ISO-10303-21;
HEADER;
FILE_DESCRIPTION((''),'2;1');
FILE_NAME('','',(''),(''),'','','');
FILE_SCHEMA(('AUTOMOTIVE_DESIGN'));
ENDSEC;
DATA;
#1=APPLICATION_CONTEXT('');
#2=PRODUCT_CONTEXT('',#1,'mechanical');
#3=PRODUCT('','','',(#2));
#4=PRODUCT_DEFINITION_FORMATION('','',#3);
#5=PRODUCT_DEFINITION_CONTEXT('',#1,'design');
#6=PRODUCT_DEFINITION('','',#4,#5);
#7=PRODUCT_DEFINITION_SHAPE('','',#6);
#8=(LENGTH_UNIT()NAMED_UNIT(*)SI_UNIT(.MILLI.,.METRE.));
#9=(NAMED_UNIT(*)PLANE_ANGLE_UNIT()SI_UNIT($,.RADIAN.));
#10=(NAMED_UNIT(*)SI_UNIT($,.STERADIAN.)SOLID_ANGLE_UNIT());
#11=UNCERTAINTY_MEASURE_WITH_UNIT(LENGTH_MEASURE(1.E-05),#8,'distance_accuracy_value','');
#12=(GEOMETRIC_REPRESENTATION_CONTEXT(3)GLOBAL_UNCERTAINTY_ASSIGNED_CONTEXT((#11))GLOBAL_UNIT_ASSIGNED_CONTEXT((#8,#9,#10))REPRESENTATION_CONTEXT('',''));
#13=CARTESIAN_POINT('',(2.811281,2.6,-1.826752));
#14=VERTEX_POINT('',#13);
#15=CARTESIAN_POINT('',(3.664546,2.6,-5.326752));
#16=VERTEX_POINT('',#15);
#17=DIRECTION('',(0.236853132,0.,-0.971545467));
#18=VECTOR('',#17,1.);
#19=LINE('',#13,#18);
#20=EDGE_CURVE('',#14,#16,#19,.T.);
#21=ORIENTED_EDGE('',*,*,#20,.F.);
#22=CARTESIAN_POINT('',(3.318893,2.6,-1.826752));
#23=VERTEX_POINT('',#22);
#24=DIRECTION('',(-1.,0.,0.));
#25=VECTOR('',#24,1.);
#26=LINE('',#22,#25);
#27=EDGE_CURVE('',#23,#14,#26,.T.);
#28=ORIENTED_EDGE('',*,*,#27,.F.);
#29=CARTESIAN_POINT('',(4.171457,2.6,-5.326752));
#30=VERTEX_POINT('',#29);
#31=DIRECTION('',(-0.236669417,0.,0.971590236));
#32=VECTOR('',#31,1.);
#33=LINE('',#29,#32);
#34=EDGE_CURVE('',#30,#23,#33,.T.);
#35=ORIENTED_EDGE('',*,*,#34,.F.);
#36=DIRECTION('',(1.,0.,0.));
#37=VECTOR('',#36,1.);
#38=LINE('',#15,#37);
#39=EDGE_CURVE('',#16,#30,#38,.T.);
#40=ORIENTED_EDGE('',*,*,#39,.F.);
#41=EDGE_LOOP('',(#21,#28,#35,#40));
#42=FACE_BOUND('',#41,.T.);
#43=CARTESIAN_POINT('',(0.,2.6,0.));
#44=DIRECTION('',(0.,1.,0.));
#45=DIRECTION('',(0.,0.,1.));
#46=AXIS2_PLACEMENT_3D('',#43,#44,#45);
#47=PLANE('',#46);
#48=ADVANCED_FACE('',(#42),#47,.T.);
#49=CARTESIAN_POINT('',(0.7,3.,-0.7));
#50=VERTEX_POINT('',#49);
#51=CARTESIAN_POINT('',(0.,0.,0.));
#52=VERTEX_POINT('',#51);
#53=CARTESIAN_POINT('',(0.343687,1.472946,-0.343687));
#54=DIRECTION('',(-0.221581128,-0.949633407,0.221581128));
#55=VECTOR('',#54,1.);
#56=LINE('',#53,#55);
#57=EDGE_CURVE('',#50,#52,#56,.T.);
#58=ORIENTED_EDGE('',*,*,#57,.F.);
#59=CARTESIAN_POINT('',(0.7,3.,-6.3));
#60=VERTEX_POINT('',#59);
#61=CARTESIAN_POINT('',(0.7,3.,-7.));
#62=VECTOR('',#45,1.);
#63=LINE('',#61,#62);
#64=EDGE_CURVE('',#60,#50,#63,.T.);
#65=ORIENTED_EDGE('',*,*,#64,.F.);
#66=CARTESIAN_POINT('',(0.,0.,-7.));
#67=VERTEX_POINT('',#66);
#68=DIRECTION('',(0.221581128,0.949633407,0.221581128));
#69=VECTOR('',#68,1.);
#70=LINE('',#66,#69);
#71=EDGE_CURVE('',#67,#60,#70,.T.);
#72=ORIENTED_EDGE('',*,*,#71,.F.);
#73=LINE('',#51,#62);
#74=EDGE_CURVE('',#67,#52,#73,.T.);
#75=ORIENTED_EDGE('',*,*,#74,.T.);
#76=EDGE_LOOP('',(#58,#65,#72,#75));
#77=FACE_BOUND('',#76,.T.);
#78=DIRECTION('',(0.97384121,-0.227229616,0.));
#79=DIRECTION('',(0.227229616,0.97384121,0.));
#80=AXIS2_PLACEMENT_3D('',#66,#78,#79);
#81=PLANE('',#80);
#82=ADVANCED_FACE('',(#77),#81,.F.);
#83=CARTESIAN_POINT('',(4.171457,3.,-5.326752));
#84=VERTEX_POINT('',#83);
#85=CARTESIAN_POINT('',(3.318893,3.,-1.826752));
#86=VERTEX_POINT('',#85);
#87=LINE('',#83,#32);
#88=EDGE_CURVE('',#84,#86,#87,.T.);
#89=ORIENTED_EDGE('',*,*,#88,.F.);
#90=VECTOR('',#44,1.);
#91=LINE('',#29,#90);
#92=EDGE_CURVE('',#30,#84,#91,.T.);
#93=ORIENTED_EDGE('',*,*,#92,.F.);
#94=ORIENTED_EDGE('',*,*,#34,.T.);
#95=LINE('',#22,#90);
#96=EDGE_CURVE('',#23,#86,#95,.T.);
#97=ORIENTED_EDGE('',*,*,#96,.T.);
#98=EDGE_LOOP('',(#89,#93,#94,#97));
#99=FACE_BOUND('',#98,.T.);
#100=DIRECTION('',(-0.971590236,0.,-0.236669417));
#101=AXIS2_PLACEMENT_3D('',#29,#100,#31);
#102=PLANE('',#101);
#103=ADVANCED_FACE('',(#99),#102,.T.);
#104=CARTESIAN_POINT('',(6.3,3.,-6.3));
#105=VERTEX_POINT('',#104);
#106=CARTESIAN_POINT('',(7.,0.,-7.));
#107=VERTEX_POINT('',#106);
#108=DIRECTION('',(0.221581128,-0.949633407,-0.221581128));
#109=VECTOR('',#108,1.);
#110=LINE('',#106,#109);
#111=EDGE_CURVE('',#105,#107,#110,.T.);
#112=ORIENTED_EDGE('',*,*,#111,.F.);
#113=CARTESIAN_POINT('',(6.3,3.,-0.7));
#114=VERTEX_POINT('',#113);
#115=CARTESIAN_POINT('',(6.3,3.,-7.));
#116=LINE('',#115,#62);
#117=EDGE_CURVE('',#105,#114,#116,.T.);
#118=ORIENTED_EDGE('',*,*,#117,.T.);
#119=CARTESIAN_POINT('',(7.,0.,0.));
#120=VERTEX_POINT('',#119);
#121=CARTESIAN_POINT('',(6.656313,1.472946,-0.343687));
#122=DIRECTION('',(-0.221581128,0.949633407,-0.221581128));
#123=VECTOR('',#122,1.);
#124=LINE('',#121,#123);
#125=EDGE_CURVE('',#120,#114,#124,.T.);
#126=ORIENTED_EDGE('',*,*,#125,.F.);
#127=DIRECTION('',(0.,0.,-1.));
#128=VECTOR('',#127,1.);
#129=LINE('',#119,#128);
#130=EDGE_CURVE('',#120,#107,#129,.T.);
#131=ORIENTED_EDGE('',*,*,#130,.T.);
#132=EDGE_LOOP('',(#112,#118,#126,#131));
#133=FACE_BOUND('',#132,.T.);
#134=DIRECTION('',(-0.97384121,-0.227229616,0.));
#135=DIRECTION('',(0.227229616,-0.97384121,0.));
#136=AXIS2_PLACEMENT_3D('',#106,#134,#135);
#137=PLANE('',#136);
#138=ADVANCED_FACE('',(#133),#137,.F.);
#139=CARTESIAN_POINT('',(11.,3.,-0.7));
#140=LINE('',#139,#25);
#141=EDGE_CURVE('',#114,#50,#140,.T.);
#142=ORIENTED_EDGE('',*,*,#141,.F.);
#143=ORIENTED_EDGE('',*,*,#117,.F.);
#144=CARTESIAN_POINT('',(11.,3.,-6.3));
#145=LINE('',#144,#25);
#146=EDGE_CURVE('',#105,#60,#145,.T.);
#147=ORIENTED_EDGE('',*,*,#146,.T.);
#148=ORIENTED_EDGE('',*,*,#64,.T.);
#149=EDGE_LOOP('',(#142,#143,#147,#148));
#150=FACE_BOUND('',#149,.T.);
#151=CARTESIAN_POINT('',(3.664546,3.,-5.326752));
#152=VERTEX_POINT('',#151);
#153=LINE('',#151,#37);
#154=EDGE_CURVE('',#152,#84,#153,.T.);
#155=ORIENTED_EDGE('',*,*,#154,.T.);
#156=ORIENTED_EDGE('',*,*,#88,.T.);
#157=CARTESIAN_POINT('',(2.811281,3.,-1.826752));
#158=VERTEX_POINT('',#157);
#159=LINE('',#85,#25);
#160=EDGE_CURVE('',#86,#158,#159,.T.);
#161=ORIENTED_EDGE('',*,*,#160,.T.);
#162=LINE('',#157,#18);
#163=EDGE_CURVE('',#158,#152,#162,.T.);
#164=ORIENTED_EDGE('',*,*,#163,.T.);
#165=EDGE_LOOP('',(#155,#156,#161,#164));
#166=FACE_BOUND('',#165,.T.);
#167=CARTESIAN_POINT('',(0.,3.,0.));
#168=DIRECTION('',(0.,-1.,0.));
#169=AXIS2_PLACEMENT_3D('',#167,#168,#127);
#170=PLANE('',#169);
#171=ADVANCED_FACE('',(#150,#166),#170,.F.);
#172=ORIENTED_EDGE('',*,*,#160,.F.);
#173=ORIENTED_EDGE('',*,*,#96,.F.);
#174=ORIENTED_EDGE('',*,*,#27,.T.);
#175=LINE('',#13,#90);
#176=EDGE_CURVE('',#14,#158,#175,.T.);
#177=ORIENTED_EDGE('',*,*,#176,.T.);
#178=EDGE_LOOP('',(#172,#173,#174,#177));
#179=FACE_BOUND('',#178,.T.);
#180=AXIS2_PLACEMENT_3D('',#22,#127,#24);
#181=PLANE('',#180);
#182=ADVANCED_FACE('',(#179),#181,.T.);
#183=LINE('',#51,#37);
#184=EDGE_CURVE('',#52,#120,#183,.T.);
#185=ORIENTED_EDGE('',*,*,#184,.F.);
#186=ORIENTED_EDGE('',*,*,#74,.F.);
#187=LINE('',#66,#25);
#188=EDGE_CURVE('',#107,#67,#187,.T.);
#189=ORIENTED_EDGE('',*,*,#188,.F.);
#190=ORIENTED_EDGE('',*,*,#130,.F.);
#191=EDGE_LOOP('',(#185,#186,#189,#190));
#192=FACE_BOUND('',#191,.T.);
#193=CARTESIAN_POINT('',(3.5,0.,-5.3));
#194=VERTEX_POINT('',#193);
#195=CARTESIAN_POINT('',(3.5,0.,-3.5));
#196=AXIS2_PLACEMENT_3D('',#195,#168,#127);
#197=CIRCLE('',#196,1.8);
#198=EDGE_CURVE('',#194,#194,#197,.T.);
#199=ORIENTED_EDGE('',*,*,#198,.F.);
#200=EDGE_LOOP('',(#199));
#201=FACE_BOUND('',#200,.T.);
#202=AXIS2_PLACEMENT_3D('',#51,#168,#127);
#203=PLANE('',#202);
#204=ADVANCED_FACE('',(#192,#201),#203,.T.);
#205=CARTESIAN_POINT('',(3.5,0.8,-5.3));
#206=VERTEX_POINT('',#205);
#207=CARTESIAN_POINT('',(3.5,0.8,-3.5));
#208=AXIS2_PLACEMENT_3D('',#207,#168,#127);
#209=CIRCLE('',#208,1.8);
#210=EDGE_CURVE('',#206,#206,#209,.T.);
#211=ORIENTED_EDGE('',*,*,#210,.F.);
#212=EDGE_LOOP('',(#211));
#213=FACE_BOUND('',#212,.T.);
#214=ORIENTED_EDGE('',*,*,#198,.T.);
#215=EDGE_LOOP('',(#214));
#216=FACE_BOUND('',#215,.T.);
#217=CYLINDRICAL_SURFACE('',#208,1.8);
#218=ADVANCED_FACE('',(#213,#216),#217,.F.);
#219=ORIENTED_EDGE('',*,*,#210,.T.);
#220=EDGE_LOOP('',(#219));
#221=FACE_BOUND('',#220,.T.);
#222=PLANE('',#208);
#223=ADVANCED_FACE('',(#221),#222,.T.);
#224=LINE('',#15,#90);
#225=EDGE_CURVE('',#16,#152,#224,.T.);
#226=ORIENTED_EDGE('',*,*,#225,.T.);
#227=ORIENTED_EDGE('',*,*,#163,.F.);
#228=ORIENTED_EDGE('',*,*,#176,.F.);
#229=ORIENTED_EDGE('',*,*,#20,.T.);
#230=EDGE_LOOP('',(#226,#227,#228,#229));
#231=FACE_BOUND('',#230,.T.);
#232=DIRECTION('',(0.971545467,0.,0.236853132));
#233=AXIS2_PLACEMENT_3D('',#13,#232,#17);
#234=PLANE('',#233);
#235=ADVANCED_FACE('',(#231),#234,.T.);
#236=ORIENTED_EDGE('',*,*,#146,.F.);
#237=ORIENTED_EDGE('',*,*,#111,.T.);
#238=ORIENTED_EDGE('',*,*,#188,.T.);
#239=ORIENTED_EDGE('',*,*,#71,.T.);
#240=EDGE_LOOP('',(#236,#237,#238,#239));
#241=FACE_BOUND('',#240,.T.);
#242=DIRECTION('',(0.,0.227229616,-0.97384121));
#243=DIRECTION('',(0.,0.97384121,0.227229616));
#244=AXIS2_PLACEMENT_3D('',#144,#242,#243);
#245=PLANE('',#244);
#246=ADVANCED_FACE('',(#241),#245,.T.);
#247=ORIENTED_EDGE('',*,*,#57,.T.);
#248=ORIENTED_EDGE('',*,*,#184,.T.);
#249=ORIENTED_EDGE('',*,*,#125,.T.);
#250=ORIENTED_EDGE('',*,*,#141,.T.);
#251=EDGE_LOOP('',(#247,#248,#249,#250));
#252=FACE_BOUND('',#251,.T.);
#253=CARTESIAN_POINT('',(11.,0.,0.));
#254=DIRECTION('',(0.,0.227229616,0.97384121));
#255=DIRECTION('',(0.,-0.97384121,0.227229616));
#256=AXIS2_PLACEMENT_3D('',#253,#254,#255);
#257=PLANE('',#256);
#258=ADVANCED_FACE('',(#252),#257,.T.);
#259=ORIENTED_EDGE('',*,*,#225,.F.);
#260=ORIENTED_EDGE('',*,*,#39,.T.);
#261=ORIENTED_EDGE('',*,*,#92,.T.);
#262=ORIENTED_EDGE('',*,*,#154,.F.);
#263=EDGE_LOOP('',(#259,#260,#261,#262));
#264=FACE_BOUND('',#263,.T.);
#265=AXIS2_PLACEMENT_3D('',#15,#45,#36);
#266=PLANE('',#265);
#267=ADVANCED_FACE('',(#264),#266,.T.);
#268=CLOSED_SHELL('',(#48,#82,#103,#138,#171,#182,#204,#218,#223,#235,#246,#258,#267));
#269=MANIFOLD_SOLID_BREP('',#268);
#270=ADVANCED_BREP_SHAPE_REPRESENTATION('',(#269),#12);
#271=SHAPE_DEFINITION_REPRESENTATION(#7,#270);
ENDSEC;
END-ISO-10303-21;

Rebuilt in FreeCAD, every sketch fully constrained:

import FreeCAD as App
import Part
import Sketcher
Q = App.Units.Quantity


def add_polygon(sketch, points):
    """Adds a closed chain of lines whose ends are joined by coincident constraints."""
    first, n = sketch.GeometryCount, len(points)
    for a, b in zip(points, points[1:] + points[:1]):
        sketch.addGeometry(Part.LineSegment(App.Vector(*a, 0), App.Vector(*b, 0)), False)
    for i in range(n):
        sketch.addConstraint(Sketcher.Constraint("Coincident", first + i, 2, first + (i + 1) % n, 1))

doc = App.newDocument("Part")
body = doc.addObject("PartDesign::Body", "Body")

# Sketch on XZ plane
sketch1 = body.newObject("Sketcher::SketchObject", "Sketch")
sketch1.AttachmentSupport = (doc.getObject("XZ_Plane"), [""])
sketch1.MapMode = "FlatFace"
add_polygon(sketch1, [(0, -7), (0, 0), (7, 0), (7, -7)])  # lines 0-3
sketch1.addConstraint([
    Sketcher.Constraint("Vertical", 0),
    Sketcher.Constraint("Horizontal", 1),
    Sketcher.Constraint("Vertical", 2),
    Sketcher.Constraint("Horizontal", 3),
    Sketcher.Constraint("Coincident", 0, 2, -1, 1),
    Sketcher.Constraint("Equal", 3, 0),
    Sketcher.Constraint("DistanceX", 1, 1, 1, 2, Q("7 mm")),
])
pad1 = body.newObject("PartDesign::Pad", "Pad")
pad1.Profile = sketch1
pad1.Length = 3
pad1.Reversed = True

# Sketch on XY plane
sketch2 = body.newObject("Sketcher::SketchObject", "Sketch001")
sketch2.AttachmentSupport = (doc.getObject("XY_Plane"), [""])
sketch2.MapMode = "FlatFace"
add_polygon(sketch2, [(0, 0), (0.7, 3), (0, 3)])  # lines 0-2
add_polygon(sketch2, [(6.3, 3), (7, 0), (7, 3)])  # lines 3-5
sketch2.addConstraint([
    Sketcher.Constraint("Horizontal", 1),
    Sketcher.Constraint("Vertical", 2),
    Sketcher.Constraint("Vertical", 4),
    Sketcher.Constraint("Horizontal", 5),
    Sketcher.Constraint("Coincident", 2, 2, -1, 1),
    Sketcher.Constraint("PointOnObject", 3, 2, -1),
    Sketcher.Constraint("Horizontal", 1, 2, 4, 2),
    Sketcher.Constraint("Equal", 1, 5),
    Sketcher.Constraint("DistanceY", 2, 2, 2, 1, Q("3 mm")),
    Sketcher.Constraint("DistanceX", 1, 2, 1, 1, Q("0.7 mm")),
    Sketcher.Constraint("DistanceX", -1, 1, 3, 2, Q("7 mm")),
])
pocket1 = body.newObject("PartDesign::Pocket", "Pocket")
pocket1.Profile = sketch2
pocket1.Length = 7

# Sketch on YZ plane
sketch3 = body.newObject("Sketcher::SketchObject", "Sketch002")
sketch3.AttachmentSupport = (doc.getObject("YZ_Plane"), [""])
sketch3.MapMode = "FlatFace"
add_polygon(sketch3, [(0, 0), (3, -0.7), (3, 0)])  # lines 0-2
add_polygon(sketch3, [(3, -7), (3, -6.3), (0, -7)])  # lines 3-5
sketch3.addConstraint([
    Sketcher.Constraint("Vertical", 1),
    Sketcher.Constraint("Horizontal", 2),
    Sketcher.Constraint("Vertical", 3),
    Sketcher.Constraint("Horizontal", 5),
    Sketcher.Constraint("Coincident", 2, 2, -1, 1),
    Sketcher.Constraint("PointOnObject", 4, 2, -2),
    Sketcher.Constraint("Vertical", 1, 2, 3, 2),
    Sketcher.Constraint("Equal", 1, 3),
    Sketcher.Constraint("DistanceX", 2, 2, 2, 1, Q("3 mm")),
    Sketcher.Constraint("DistanceY", 1, 1, 1, 2, Q("0.7 mm")),
    Sketcher.Constraint("DistanceY", 4, 2, -1, 1, Q("7 mm")),
])
pocket2 = body.newObject("PartDesign::Pocket", "Pocket001")
pocket2.Profile = sketch3
pocket2.Length = 11
pocket2.Reversed = True

# Sketch on XZ plane
sketch4 = body.newObject("Sketcher::SketchObject", "Sketch003")
sketch4.AttachmentSupport = (doc.getObject("XZ_Plane"), [""])
sketch4.MapMode = "FlatFace"
sketch4.addGeometry(Part.Circle(App.Vector(3.5, -3.5, 0), App.Vector(0, 0, 1), 1.8), False)
sketch4.addConstraint([
    Sketcher.Constraint("Diameter", 0, Q("3.6 mm")),
    Sketcher.Constraint("DistanceX", -1, 1, 0, 3, Q("3.5 mm")),
    Sketcher.Constraint("DistanceY", 0, 3, -1, 1, Q("3.5 mm")),
])
pocket3 = body.newObject("PartDesign::Pocket", "Pocket002")
pocket3.Profile = sketch4
pocket3.Length = 0.8

# Sketch on XZ plane
sketch5 = body.newObject("Sketcher::SketchObject", "Sketch004")
sketch5.AttachmentSupport = (doc.getObject("XZ_Plane"), [""])
sketch5.MapMode = "FlatFace"
sketch5.AttachmentOffset = App.Placement(App.Vector(0, 0, -3), App.Rotation())
add_polygon(sketch5, [(3.7, -5.3), (2.8, -1.8), (3.3, -1.8), (4.2, -5.3)])  # lines 0-3
sketch5.addConstraint([
    Sketcher.Constraint("Horizontal", 1),
    Sketcher.Constraint("Horizontal", 3),
    Sketcher.Constraint("DistanceY", 2, 2, 1, 2, Q("3.5 mm")),
    Sketcher.Constraint("DistanceX", 3, 2, 3, 1, Q("0.506911 mm")),
    Sketcher.Constraint("Distance", 2, Q("3.602342 mm")),
    Sketcher.Constraint("DistanceX", 1, 1, 1, 2, Q("0.507612 mm")),
    Sketcher.Constraint("DistanceX", -1, 1, 0, 2, Q("2.811281 mm")),
    Sketcher.Constraint("DistanceY", 0, 2, -1, 1, Q("1.826752 mm")),
])
pocket4 = body.newObject("PartDesign::Pocket", "Pocket003")
pocket4.Profile = sketch5
pocket4.Length = 0.4
pocket4.Reversed = True

doc.recompute()
